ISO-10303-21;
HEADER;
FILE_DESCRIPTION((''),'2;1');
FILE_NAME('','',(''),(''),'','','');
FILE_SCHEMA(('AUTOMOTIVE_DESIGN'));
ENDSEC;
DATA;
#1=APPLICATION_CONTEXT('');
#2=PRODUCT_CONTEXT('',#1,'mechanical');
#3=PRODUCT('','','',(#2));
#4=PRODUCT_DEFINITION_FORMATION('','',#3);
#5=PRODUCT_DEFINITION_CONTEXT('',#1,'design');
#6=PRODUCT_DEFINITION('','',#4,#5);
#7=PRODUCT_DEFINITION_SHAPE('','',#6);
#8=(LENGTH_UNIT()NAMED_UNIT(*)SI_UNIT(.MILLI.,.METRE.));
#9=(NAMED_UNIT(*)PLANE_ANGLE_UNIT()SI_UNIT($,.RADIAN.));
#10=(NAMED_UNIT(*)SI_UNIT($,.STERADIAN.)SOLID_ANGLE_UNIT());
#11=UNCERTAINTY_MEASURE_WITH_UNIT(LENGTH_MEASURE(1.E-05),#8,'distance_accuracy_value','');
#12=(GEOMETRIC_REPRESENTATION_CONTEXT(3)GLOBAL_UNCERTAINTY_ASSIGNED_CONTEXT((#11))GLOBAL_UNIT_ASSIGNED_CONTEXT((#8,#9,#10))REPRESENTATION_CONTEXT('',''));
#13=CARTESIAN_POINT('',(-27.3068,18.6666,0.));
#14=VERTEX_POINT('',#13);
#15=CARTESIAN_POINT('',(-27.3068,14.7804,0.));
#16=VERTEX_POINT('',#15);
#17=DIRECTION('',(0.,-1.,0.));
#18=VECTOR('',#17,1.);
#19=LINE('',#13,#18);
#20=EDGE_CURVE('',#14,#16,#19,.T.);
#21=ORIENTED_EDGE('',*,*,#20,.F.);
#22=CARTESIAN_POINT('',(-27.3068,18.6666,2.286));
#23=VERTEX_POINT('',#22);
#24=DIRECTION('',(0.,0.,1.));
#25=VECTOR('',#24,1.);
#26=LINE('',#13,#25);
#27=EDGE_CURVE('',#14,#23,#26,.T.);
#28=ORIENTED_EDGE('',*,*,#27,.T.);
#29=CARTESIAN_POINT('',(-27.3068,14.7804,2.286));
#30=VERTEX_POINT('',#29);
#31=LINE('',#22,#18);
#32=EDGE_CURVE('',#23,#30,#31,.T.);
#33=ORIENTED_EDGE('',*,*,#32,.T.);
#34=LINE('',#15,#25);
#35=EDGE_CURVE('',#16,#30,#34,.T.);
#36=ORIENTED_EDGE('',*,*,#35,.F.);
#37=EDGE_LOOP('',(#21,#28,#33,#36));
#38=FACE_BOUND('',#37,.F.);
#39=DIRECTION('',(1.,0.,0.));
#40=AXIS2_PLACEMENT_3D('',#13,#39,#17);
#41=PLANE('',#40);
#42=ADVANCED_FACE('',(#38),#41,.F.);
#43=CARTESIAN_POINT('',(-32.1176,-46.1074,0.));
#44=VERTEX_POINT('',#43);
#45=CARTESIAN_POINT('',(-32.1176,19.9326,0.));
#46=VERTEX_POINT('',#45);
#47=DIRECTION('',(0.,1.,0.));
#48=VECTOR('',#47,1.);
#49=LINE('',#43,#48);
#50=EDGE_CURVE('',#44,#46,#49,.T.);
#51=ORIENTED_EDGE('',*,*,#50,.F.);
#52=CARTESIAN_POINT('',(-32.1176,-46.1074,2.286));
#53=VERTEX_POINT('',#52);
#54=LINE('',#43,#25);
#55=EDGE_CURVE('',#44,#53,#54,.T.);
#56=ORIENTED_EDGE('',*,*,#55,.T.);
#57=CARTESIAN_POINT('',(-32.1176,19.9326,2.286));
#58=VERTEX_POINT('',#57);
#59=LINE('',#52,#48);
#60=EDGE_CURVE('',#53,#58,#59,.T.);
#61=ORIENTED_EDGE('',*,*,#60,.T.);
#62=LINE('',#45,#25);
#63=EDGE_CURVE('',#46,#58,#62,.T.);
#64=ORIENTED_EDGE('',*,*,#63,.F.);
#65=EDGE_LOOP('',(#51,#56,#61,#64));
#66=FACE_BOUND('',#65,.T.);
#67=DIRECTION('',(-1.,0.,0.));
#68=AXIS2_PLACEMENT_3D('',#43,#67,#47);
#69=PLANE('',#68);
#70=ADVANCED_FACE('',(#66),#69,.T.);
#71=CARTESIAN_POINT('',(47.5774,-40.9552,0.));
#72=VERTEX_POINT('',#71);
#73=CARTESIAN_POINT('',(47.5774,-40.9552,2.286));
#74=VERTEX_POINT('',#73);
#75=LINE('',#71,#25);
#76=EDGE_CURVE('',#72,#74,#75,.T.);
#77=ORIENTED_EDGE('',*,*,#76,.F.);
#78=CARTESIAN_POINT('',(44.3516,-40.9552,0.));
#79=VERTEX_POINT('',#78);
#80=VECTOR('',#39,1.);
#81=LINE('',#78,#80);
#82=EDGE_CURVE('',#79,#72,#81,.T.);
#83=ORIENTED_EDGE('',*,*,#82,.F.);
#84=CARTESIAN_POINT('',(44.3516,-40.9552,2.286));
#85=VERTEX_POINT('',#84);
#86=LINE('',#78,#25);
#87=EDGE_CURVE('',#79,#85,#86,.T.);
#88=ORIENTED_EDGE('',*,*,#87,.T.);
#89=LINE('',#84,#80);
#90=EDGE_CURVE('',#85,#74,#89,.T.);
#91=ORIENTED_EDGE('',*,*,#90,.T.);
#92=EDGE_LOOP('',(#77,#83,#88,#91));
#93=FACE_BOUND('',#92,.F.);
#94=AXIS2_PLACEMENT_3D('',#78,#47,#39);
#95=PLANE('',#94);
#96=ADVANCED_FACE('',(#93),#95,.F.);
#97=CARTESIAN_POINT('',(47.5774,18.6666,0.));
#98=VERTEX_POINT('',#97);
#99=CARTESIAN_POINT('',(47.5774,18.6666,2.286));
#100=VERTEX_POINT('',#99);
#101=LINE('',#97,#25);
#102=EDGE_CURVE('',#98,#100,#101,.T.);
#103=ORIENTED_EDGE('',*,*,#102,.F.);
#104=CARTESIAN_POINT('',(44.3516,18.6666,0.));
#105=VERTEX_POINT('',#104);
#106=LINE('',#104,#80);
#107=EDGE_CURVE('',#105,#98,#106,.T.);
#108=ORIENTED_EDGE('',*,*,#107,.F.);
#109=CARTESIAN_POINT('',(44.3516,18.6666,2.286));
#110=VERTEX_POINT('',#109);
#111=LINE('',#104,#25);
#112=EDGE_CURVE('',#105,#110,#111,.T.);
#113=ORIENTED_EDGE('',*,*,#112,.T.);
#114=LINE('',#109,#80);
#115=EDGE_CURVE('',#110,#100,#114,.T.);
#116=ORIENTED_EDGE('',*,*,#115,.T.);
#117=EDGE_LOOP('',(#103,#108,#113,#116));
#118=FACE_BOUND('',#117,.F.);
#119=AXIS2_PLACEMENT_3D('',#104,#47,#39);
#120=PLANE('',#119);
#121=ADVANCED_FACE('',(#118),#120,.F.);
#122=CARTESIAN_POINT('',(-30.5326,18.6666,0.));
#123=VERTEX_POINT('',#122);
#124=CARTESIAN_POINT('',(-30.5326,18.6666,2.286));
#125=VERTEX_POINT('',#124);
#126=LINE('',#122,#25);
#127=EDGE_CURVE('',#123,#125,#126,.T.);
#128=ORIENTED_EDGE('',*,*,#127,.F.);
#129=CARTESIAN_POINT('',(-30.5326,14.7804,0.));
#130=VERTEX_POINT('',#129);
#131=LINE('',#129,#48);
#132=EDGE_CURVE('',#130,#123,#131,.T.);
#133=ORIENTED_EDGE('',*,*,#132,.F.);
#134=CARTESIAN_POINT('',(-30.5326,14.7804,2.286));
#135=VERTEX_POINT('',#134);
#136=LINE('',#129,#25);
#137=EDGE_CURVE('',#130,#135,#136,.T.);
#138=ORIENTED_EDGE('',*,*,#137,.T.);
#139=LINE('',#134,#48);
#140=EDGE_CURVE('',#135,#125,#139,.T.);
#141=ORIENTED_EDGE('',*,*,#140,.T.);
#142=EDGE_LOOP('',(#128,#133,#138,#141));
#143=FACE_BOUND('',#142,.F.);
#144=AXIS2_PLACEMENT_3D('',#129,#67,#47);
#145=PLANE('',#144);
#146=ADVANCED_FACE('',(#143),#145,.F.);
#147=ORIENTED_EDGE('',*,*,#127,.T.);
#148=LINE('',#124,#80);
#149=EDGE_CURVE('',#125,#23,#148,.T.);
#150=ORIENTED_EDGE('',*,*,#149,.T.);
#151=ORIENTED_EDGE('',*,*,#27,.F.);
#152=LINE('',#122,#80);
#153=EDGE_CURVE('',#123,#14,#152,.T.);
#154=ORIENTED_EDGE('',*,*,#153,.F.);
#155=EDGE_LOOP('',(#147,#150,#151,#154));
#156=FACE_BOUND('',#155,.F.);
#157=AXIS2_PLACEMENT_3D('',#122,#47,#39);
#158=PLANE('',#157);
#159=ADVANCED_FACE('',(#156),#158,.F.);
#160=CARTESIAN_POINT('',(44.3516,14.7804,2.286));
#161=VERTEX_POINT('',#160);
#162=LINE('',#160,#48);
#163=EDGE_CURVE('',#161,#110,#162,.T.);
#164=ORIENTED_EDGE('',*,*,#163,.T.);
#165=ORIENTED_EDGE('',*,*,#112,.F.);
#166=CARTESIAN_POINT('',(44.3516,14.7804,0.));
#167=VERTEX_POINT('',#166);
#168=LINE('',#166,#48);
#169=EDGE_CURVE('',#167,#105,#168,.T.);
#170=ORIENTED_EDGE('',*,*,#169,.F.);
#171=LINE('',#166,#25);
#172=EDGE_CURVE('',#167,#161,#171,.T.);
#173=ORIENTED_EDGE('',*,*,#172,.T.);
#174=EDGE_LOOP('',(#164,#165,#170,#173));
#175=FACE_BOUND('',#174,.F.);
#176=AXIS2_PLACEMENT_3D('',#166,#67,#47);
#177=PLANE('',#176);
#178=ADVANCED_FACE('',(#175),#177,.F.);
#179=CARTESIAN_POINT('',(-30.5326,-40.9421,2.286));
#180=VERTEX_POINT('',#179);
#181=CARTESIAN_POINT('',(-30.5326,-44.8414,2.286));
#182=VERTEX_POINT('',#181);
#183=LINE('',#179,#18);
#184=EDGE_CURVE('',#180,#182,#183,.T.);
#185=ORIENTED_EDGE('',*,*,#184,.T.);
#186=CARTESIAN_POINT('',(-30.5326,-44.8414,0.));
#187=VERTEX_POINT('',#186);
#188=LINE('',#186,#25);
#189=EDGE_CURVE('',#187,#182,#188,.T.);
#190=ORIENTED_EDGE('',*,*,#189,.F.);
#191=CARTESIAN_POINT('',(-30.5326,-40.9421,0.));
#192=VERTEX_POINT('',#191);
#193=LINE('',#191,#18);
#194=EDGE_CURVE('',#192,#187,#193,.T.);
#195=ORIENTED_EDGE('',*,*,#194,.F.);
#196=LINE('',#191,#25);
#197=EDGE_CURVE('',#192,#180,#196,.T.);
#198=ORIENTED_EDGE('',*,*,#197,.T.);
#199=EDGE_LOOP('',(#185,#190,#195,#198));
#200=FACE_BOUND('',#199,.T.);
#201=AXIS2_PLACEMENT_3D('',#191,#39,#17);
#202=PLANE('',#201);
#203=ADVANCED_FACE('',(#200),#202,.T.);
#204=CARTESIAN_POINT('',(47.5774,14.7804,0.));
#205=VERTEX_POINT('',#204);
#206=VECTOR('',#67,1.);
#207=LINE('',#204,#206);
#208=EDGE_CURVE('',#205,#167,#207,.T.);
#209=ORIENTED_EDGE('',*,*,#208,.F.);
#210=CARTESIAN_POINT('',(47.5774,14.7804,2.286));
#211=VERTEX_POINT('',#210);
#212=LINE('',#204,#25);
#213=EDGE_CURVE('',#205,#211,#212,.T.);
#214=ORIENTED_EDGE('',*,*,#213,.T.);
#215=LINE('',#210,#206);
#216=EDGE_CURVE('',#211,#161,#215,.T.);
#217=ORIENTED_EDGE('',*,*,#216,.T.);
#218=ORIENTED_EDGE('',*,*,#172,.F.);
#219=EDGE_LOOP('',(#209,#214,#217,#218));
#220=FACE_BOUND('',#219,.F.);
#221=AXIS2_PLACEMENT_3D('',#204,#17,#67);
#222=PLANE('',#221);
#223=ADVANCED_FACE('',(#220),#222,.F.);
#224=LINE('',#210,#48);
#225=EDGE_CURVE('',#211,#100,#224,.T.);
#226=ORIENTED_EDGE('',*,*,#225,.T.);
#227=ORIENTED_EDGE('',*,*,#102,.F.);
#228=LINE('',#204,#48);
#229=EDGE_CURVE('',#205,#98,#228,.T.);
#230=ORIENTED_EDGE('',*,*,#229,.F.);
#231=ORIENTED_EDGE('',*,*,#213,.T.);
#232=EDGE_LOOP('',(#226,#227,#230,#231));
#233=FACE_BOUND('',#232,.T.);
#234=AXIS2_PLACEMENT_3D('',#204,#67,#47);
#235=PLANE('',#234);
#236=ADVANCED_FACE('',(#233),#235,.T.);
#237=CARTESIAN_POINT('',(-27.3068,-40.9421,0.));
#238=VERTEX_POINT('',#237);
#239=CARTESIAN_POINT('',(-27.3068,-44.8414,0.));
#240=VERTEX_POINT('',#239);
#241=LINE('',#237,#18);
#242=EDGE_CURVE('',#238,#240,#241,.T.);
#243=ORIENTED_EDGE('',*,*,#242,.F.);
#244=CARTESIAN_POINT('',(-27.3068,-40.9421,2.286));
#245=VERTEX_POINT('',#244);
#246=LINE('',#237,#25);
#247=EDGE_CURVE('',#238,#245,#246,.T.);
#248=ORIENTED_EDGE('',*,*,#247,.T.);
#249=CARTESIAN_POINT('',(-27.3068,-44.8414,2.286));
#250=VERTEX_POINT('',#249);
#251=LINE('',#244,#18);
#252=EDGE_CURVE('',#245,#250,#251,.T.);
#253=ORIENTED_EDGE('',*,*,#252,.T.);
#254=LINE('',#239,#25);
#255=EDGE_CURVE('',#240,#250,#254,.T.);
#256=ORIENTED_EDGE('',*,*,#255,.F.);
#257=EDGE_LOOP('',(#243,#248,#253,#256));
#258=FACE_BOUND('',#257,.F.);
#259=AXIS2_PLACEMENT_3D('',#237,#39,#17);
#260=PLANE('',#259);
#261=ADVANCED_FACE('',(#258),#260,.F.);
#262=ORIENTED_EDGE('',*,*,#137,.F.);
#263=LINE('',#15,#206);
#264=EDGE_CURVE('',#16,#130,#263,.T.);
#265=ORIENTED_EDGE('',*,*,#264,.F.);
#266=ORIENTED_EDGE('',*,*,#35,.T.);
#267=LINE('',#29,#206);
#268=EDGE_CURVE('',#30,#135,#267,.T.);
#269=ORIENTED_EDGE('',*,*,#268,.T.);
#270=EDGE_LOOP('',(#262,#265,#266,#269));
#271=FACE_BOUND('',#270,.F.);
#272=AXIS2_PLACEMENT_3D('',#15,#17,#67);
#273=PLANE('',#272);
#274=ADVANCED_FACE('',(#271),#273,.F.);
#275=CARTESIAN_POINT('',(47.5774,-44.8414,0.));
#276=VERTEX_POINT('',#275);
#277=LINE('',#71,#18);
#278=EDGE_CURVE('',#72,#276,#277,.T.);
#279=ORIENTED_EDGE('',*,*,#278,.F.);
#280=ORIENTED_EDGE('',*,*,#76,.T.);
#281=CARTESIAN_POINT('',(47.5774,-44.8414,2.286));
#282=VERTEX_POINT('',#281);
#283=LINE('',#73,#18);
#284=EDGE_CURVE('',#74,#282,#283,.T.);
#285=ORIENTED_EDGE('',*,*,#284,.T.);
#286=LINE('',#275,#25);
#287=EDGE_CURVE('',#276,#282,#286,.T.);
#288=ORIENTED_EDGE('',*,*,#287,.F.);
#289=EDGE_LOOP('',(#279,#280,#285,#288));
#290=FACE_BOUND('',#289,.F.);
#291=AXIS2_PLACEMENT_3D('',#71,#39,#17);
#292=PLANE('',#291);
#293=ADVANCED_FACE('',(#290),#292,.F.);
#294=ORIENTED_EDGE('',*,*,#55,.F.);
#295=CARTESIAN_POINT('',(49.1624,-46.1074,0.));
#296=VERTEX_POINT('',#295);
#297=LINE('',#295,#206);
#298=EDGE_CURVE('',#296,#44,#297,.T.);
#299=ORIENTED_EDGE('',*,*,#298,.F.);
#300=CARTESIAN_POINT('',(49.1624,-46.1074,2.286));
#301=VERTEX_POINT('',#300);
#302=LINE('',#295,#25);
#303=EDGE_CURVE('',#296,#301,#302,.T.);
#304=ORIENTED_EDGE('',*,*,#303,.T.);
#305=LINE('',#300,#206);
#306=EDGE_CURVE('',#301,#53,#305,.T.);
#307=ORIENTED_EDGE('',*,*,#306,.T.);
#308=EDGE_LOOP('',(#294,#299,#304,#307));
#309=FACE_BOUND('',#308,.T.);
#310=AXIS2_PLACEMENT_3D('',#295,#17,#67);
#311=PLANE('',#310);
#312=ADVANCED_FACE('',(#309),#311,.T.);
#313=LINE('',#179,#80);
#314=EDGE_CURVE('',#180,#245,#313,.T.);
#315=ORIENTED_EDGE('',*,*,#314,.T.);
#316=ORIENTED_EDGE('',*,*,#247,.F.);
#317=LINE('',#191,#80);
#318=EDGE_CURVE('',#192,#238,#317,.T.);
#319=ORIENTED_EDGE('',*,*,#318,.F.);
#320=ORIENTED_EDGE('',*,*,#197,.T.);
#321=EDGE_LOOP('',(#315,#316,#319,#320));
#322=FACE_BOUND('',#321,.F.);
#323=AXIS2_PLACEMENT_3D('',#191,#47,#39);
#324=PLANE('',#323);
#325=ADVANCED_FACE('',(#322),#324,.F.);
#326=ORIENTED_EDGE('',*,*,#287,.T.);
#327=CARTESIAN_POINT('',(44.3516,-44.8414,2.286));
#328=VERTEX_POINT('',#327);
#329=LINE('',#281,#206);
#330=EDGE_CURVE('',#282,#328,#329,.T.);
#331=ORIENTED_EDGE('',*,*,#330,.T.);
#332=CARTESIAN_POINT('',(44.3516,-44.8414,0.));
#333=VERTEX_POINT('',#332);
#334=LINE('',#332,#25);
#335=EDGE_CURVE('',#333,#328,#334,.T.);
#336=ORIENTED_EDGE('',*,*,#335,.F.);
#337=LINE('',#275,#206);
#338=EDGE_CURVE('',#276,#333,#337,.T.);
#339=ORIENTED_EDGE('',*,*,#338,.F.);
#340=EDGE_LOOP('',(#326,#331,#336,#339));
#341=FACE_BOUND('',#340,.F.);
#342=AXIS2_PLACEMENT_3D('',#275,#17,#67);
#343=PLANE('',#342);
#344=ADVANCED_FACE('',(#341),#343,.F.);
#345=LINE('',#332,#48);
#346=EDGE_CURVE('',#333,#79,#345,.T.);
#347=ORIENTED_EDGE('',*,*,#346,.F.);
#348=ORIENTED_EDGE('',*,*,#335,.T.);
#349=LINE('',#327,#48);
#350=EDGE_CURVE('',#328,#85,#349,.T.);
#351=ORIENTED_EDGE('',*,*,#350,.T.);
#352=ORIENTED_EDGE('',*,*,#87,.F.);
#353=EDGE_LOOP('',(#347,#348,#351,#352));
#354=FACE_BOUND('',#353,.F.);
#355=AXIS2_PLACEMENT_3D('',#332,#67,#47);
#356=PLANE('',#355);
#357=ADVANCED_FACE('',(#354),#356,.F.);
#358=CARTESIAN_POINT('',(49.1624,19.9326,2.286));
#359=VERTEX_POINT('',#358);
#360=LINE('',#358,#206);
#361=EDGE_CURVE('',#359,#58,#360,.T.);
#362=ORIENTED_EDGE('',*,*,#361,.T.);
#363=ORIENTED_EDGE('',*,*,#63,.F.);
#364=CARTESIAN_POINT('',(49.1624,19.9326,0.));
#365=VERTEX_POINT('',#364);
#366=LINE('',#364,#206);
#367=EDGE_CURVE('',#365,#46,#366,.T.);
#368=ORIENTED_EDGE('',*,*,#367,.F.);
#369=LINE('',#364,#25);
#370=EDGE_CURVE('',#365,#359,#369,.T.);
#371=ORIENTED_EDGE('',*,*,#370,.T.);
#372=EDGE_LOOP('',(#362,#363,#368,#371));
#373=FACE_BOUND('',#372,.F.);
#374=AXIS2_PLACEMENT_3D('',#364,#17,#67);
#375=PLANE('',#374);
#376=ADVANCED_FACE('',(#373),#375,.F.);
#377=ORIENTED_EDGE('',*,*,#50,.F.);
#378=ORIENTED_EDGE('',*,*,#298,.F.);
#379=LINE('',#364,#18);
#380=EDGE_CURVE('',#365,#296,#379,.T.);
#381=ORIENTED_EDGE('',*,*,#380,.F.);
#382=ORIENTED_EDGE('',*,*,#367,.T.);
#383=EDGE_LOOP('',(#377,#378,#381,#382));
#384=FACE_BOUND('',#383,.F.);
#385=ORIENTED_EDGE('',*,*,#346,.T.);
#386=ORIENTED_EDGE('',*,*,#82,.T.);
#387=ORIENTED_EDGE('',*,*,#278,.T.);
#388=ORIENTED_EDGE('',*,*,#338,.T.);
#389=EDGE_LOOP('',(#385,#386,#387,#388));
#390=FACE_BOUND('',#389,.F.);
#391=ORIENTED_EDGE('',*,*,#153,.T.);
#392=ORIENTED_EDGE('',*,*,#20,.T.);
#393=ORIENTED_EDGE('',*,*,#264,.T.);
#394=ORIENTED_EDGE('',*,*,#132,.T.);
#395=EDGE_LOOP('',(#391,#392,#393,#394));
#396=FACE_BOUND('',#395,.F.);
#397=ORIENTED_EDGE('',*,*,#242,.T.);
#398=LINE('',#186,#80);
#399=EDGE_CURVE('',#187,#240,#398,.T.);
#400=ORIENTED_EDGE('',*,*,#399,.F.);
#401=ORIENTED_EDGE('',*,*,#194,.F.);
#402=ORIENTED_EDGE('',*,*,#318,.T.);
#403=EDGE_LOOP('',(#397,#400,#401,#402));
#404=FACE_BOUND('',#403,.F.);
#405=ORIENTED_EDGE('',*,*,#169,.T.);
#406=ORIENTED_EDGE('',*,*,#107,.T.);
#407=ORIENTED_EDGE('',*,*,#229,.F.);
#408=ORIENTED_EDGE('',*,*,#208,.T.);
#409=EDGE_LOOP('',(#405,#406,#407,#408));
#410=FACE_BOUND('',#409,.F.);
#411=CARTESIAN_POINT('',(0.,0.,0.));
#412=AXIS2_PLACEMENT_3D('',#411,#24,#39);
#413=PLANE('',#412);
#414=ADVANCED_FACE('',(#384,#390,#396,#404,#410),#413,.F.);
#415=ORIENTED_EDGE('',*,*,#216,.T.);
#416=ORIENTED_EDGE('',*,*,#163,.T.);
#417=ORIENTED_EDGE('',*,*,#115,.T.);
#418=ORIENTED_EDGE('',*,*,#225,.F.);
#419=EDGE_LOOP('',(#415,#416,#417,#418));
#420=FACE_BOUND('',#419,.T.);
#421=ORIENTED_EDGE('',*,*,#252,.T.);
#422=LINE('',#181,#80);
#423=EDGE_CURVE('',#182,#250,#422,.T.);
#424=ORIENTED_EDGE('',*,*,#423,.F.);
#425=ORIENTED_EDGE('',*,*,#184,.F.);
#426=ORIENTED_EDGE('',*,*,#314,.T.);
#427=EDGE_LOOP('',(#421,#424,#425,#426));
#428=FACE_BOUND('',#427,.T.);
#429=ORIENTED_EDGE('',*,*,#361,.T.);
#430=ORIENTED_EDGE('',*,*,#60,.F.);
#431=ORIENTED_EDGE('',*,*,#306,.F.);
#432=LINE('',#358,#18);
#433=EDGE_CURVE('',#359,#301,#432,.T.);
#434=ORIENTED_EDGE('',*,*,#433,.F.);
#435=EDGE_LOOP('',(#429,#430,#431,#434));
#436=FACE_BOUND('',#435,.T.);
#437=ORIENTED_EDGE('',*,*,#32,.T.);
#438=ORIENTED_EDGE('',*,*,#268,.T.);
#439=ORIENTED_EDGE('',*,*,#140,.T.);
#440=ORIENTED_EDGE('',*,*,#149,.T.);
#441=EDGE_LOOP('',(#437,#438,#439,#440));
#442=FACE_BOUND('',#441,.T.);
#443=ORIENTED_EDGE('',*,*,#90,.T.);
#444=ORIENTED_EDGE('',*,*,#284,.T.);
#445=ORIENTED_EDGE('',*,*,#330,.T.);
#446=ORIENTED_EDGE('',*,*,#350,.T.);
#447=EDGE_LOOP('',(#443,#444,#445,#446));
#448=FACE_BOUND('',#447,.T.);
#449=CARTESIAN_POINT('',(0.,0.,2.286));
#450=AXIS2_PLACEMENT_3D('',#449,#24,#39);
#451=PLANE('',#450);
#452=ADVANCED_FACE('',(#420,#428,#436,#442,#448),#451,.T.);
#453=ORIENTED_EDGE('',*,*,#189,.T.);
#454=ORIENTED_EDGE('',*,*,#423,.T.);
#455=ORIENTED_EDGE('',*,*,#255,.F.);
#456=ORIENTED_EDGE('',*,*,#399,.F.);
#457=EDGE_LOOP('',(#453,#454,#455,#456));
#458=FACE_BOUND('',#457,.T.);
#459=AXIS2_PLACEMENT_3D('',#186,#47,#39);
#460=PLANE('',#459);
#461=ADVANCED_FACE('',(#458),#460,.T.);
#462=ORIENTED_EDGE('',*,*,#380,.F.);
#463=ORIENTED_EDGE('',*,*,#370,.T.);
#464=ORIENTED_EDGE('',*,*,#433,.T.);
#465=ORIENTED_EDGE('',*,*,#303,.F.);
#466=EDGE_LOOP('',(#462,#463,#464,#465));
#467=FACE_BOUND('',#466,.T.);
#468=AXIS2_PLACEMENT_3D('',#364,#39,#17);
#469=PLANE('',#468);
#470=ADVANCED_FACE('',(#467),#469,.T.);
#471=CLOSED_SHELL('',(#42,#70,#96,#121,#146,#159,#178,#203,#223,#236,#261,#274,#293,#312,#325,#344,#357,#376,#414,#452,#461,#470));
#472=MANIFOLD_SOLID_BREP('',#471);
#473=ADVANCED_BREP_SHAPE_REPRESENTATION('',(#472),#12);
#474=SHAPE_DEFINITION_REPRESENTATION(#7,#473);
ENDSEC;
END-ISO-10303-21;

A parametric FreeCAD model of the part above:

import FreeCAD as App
import Part
import Sketcher
Q = App.Units.Quantity


def add_polygon(sketch, points):
    """Adds a closed chain of lines whose ends are joined by coincident constraints."""
    first, n = sketch.GeometryCount, len(points)
    for a, b in zip(points, points[1:] + points[:1]):
        sketch.addGeometry(Part.LineSegment(App.Vector(*a, 0), App.Vector(*b, 0)), False)
    for i in range(n):
        sketch.addConstraint(Sketcher.Constraint("Coincident", first + i, 2, first + (i + 1) % n, 1))

doc = App.newDocument("Part")
body = doc.addObject("PartDesign::Body", "Body")

sketch1 = body.newObject("Sketcher::SketchObject", "Sketch")
sketch1.AttachmentSupport = (doc.getObject("XY_Plane"), [""])
sketch1.MapMode = "FlatFace"
add_polygon(sketch1, [(-32.1, -46.1), (49.2, -46.1), (49.2, 19.9), (-32.1, 19.9)])
add_polygon(sketch1, [(-30.5, -44.8), (-30.5, -40.9), (-27.3, -40.9), (-27.3, -44.8)])
add_polygon(sketch1, [(44.4, -44.8), (44.4, -41), (47.6, -41), (47.6, -44.8)])
add_polygon(sketch1, [(-27.3, 18.7), (-27.3, 14.8), (-30.5, 14.8), (-30.5, 18.7)])
add_polygon(sketch1, [(47.6, 18.7), (47.6, 14.8), (44.4, 14.8), (44.4, 18.7)])
sketch1.addConstraint([
    Sketcher.Constraint("Horizontal", 0),
    Sketcher.Constraint("Vertical", 1),
    Sketcher.Constraint("Horizontal", 2),
    Sketcher.Constraint("Vertical", 3),
    Sketcher.Constraint("Vertical", 4),
    Sketcher.Constraint("Horizontal", 5),
    Sketcher.Constraint("Vertical", 6),
    Sketcher.Constraint("Horizontal", 7),
    Sketcher.Constraint("Vertical", 8),
    Sketcher.Constraint("Horizontal", 9),
    Sketcher.Constraint("Vertical", 10),
    Sketcher.Constraint("Horizontal", 11),
    Sketcher.Constraint("Vertical", 12),
    Sketcher.Constraint("Horizontal", 13),
    Sketcher.Constraint("Vertical", 14),
    Sketcher.Constraint("Horizontal", 15),
    Sketcher.Constraint("Vertical", 16),
    Sketcher.Constraint("Horizontal", 17),
    Sketcher.Constraint("Vertical", 18),
    Sketcher.Constraint("Horizontal", 19),
    Sketcher.Constraint("Horizontal", 7, 2, 10, 2),
    Sketcher.Constraint("Horizontal", 13, 2, 16, 2),
    Sketcher.Constraint("Horizontal", 15, 2, 18, 2),
    Sketcher.Constraint("Vertical", 6, 2, 12, 2),
    Sketcher.Constraint("Vertical", 7, 2, 13, 2),
    Sketcher.Constraint("Vertical", 10, 2, 16, 2),
    Sketcher.Constraint("Vertical", 11, 2, 17, 2),
    Sketcher.Constraint("Equal", 7, 9),
    Sketcher.Constraint("Equal", 10, 12),
    Sketcher.Constraint("DistanceX", 0, 1, 0, 2, Q("3.2 in")),
    Sketcher.Constraint("DistanceY", 1, 1, 1, 2, Q("2.6 in")),
    Sketcher.Constraint("DistanceX", 5, 1, 5, 2, Q("0.127 in")),
    Sketcher.Constraint("DistanceY", 8, 1, 8, 2, Q("0.153 in")),
    Sketcher.Constraint("DistanceY", 4, 1, 4, 2, 3.8993),
    Sketcher.Constraint("DistanceY", 4, 2, -1, 1, Q("1.6119 in")),
    Sketcher.Constraint("DistanceY", -1, 1, 12, 2, Q("0.5819 in")),
    Sketcher.Constraint("DistanceX", 3, 2, 4, 2, Q("0.0624 in")),
    Sketcher.Constraint("DistanceX", 8, 2, 0, 2, Q("0.1894 in")),
    Sketcher.Constraint("DistanceX", -1, 1, 0, 2, 49.1624),
    Sketcher.Constraint("DistanceY", 0, 2, -1, 1, 46.1074),
])
pad1 = body.newObject("PartDesign::Pad", "Pad")
pad1.Profile = sketch1
pad1.Length = Q("0.09 in")

doc.recompute()
